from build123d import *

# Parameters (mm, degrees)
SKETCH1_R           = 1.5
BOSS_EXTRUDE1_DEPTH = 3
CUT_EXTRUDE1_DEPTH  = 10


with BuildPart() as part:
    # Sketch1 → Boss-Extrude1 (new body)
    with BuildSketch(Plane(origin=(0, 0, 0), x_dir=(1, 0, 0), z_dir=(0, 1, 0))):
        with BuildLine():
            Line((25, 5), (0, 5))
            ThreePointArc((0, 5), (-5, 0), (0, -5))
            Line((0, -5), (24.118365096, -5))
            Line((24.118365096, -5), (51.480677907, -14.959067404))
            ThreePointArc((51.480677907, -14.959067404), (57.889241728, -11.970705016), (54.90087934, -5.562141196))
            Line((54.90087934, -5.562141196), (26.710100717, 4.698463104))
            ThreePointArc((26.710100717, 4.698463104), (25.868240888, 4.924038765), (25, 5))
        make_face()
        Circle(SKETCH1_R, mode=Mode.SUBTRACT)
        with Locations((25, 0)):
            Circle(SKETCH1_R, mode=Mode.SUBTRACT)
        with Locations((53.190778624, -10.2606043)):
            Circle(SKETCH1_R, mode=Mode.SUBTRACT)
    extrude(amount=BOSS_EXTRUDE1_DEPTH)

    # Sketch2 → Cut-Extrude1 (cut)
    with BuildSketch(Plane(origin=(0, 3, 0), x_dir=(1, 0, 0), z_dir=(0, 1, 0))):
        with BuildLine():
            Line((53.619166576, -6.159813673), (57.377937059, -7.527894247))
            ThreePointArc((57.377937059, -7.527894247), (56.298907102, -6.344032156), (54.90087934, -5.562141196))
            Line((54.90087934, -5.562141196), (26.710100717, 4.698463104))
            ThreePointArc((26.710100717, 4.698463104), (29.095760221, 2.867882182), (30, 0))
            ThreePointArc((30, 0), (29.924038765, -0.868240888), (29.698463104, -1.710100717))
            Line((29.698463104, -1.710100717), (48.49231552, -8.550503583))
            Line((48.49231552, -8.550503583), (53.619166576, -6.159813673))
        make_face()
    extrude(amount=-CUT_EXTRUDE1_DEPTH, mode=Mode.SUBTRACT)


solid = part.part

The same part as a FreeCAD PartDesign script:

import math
import FreeCAD as App
import Part
import Sketcher
Q = App.Units.Quantity

doc = App.newDocument("Part")
body = doc.addObject("PartDesign::Body", "Body")

sketch1 = doc.addObject("Sketcher::SketchObject", "Sketch")
body.addObject(sketch1)
sketch1.AttachmentSupport = (doc.XZ_Plane, [""])
sketch1.MapMode = "FlatFace"
sketch1.addGeometry(Part.LineSegment(App.Vector(25, -5, 0), App.Vector(0, -5, 0)), False)
sketch1.addGeometry(Part.ArcOfCircle(Part.Circle(App.Vector(0, 0, 0), App.Vector(0, 0, 1), 5), math.radians(90), math.radians(270)), False)
sketch1.addGeometry(Part.LineSegment(App.Vector(0, 5, 0), App.Vector(24.118365, 5, 0)), False)
sketch1.addGeometry(Part.LineSegment(App.Vector(24.118365, 5, 0), App.Vector(51.480678, 14.959067, 0)), False)
sketch1.addGeometry(Part.ArcOfCircle(Part.Circle(App.Vector(53.190779, 10.260604, 0), App.Vector(0, 0, 1), 5), math.radians(-70), math.radians(110)), False)
sketch1.addGeometry(Part.LineSegment(App.Vector(54.900879, 5.562141, 0), App.Vector(26.710101, -4.698463, 0)), False)
sketch1.addGeometry(Part.ArcOfCircle(Part.Circle(App.Vector(25, 0, 0), App.Vector(0, 0, 1), 5), math.radians(-90), math.radians(-70)), False)
sketch1.addGeometry(Part.Circle(App.Vector(53.190779, 10.260604, 0), App.Vector(0, 0, 1), 1.5), False)
sketch1.addGeometry(Part.Circle(App.Vector(0, 0, 0), App.Vector(0, 0, 1), 1.5), False)
sketch1.addGeometry(Part.Circle(App.Vector(25, 0, 0), App.Vector(0, 0, 1), 1.5), False)
sketch1.addConstraint(Sketcher.Constraint("Tangent", 0, 2, 1, 2))
sketch1.addConstraint(Sketcher.Constraint("Tangent", 1, 1, 2, 1))
sketch1.addConstraint(Sketcher.Constraint("Coincident", 2, 2, 3, 1))
sketch1.addConstraint(Sketcher.Constraint("Tangent", 3, 2, 4, 2))
sketch1.addConstraint(Sketcher.Constraint("Tangent", 4, 1, 5, 1))
sketch1.addConstraint(Sketcher.Constraint("Tangent", 5, 2, 6, 2))
sketch1.addConstraint(Sketcher.Constraint("Tangent", 6, 1, 0, 1))
sketch1.addConstraint(Sketcher.Constraint("Horizontal", 0))
sketch1.addConstraint(Sketcher.Constraint("Horizontal", 2))
sketch1.addConstraint(Sketcher.Constraint("Coincident", 1, 3, -1, 1))
sketch1.addConstraint(Sketcher.Constraint("Coincident", 8, 3, -1, 1))
sketch1.addConstraint(Sketcher.Constraint("Coincident", 7, 3, 4, 3))
sketch1.addConstraint(Sketcher.Constraint("Coincident", 9, 3, 6, 3))
sketch1.addConstraint(Sketcher.Constraint("Equal", 1, 4))
sketch1.addConstraint(Sketcher.Constraint("Equal", 4, 6))
sketch1.addConstraint(Sketcher.Constraint("Equal", 7, 8))
sketch1.addConstraint(Sketcher.Constraint("Equal", 8, 9))
sketch1.addConstraint(Sketcher.Constraint("Parallel", 3, 5))
sketch1.addConstraint(Sketcher.Constraint("Diameter", 7, Q("3 mm")))
sketch1.addConstraint(Sketcher.Constraint("Radius", 1, Q("5 mm")))
sketch1.addConstraint(Sketcher.Constraint("DistanceX", 0, 2, 0, 1, Q("25 mm")))
sketch1.addConstraint(Sketcher.Constraint("Angle", 3, Q("20 deg")))
sketch1.addConstraint(Sketcher.Constraint("Distance", 5, Q("30 mm")))
pad1 = doc.addObject("PartDesign::Pad", "Pad")
body.addObject(pad1)
pad1.Profile = sketch1
pad1.Length = 3
pad1.Reversed = True

sketch2 = doc.addObject("Sketcher::SketchObject", "Sketch001")
body.addObject(sketch2)
sketch2.AttachmentSupport = (doc.XZ_Plane, [""])
sketch2.MapMode = "FlatFace"
sketch2.AttachmentOffset = App.Placement(App.Vector(0, 0, -3), App.Rotation())
sketch2.addGeometry(Part.LineSegment(App.Vector(53.619167, 6.159814, 0), App.Vector(57.377937, 7.527894, 0)), False)
sketch2.addGeometry(Part.ArcOfCircle(Part.Circle(App.Vector(53.190779, 10.260604, 0), App.Vector(0, 0, 1), 5), math.radians(-70), math.radians(-33.130102)), False)
sketch2.addGeometry(Part.LineSegment(App.Vector(54.900879, 5.562141, 0), App.Vector(26.710101, -4.698463, 0)), False)
sketch2.addGeometry(Part.ArcOfCircle(Part.Circle(App.Vector(25, 0, 0), App.Vector(0, 0, 1), 5), math.radians(-70), math.radians(0)), False)
sketch2.addGeometry(Part.ArcOfCircle(Part.Circle(App.Vector(25, 0, 0), App.Vector(0, 0, 1), 5), math.radians(0), math.radians(20)), False)
sketch2.addGeometry(Part.LineSegment(App.Vector(29.698463, 1.710101, 0), App.Vector(48.492316, 8.550504, 0)), False)
sketch2.addGeometry(Part.LineSegment(App.Vector(48.492316, 8.550504, 0), App.Vector(53.619167, 6.159814, 0)), False)
sketch2.addConstraint(Sketcher.Constraint("Coincident", 0, 2, 1, 2))
sketch2.addConstraint(Sketcher.Constraint("Tangent", 1, 1, 2, 1))
sketch2.addConstraint(Sketcher.Constraint("Tangent", 2, 2, 3, 1))
sketch2.addConstraint(Sketcher.Constraint("Tangent", 3, 2, 4, 1))
sketch2.addConstraint(Sketcher.Constraint("Coincident", 4, 2, 5, 1))
sketch2.addConstraint(Sketcher.Constraint("Coincident", 5, 2, 6, 1))
sketch2.addConstraint(Sketcher.Constraint("Coincident", 6, 2, 0, 1))
sketch2.addConstraint(Sketcher.Constraint("Equal", 1, 3))
sketch2.addConstraint(Sketcher.Constraint("Equal", 3, 4))
sketch2.addConstraint(Sketcher.Constraint("PointOnObject", 3, 3, -1))
sketch2.addConstraint(Sketcher.Constraint("PointOnObject", 3, 2, -1))
sketch2.addConstraint(Sketcher.Constraint("Parallel", 0, 2))
sketch2.addConstraint(Sketcher.Constraint("Parallel", 2, 5))
sketch2.addConstraint(Sketcher.Constraint("Radius", 1, Q("5 mm")))
sketch2.addConstraint(Sketcher.Constraint("Angle", 0, Q("20 deg")))
sketch2.addConstraint(Sketcher.Constraint("Angle", 6, Q("-25 deg")))
sketch2.addConstraint(Sketcher.Constraint("Distance", 0, Q("4 mm")))
sketch2.addConstraint(Sketcher.Constraint("Distance", 2, Q("30 mm")))
sketch2.addConstraint(Sketcher.Constraint("Distance", 5, Q("20 mm")))
sketch2.addConstraint(Sketcher.Constraint("DistanceX", -1, 1, 3, 3, Q("25 mm")))
sketch2.addConstraint(Sketcher.Constraint("DistanceY", -1, 1, 4, 2, Q("1.710101 mm")))
pocket1 = doc.addObject("PartDesign::Pocket", "Pocket")
body.addObject(pocket1)
pocket1.Profile = sketch2
pocket1.Length = 10
pocket1.Reversed = True

doc.recompute()
